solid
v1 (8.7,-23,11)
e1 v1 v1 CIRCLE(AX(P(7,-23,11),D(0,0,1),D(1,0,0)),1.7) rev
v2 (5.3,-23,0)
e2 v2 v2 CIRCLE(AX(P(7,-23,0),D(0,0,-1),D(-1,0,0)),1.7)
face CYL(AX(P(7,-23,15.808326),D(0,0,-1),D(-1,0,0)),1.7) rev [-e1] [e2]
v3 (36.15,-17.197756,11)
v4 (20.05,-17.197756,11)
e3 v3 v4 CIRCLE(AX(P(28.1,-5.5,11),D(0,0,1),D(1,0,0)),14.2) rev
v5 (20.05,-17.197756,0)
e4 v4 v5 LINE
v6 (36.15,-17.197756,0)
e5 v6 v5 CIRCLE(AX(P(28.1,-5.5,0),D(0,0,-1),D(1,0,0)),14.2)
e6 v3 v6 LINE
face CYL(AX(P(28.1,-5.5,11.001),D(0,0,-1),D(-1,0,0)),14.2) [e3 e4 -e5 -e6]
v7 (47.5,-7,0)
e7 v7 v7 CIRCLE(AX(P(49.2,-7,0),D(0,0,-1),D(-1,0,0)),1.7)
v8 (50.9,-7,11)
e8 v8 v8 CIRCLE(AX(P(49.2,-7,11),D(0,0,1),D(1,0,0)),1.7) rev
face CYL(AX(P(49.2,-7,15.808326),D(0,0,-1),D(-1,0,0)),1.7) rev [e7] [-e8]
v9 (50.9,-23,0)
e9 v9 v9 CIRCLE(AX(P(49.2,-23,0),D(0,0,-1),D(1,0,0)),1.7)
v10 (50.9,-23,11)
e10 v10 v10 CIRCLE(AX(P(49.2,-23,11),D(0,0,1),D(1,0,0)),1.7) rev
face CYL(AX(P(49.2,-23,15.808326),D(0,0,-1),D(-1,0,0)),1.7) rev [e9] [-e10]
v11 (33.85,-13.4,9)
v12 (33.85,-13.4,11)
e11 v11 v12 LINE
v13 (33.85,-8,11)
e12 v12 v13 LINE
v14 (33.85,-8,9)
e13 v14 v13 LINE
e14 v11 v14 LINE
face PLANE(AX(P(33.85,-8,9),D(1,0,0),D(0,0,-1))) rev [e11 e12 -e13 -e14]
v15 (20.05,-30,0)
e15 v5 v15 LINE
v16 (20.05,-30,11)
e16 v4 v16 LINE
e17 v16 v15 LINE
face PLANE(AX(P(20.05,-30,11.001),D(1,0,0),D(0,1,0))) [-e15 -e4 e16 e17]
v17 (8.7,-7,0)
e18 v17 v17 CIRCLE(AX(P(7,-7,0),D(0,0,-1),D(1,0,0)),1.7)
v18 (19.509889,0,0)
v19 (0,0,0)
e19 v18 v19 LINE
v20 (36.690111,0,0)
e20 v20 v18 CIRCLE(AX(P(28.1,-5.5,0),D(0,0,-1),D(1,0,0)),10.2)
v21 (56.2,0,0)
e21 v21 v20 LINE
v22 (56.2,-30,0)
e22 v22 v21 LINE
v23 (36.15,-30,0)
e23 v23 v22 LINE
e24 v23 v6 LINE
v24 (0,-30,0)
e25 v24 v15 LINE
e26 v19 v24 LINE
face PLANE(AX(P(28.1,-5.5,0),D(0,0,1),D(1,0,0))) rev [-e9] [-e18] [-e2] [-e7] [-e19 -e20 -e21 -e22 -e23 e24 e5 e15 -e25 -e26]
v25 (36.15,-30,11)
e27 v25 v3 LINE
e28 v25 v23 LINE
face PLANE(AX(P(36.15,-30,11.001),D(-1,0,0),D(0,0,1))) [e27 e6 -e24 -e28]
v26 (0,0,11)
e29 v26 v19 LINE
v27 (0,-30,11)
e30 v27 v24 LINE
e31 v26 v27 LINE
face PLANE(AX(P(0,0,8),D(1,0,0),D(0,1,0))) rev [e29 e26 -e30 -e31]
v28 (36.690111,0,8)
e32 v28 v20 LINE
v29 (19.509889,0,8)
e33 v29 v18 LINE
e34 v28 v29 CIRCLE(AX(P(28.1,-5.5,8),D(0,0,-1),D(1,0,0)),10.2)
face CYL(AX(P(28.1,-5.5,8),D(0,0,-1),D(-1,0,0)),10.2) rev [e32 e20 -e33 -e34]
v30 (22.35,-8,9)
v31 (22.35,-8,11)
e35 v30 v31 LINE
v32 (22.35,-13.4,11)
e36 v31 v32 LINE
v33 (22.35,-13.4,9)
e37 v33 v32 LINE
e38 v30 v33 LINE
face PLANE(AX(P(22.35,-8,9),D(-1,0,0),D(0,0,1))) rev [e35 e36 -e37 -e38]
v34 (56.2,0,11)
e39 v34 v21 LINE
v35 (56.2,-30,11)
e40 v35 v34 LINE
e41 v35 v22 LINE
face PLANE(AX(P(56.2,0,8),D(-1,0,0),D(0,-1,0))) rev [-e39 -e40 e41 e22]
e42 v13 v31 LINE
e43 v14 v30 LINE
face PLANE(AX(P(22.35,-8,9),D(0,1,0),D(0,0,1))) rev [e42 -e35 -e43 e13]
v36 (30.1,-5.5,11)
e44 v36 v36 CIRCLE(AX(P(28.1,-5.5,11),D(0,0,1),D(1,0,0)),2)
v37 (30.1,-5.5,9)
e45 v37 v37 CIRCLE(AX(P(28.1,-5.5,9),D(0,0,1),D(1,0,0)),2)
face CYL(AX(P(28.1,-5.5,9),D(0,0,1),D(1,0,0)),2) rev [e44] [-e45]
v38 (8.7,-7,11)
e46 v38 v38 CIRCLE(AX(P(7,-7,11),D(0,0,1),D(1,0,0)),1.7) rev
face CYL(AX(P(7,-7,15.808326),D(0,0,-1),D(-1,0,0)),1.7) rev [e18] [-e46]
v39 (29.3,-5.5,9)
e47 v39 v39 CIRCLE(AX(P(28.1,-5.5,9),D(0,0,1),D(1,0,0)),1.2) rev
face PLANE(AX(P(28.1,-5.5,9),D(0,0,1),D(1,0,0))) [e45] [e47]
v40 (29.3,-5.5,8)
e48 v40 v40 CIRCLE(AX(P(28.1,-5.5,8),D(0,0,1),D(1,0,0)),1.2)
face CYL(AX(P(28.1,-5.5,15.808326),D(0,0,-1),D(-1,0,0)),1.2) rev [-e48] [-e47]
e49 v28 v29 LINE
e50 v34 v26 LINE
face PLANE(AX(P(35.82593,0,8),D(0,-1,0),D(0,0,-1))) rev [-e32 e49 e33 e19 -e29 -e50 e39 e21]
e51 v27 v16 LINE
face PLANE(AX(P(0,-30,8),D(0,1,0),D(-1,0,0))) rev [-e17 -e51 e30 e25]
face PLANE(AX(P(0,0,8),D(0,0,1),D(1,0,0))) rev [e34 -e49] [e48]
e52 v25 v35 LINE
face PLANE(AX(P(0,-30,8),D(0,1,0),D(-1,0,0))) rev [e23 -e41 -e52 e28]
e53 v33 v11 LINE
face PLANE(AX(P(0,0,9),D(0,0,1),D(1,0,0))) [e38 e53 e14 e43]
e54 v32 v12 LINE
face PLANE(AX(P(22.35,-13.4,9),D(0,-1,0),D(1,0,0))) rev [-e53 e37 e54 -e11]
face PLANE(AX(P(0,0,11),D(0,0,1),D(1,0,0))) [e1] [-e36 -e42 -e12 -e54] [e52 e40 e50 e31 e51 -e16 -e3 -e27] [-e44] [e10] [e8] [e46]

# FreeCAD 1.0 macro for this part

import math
import FreeCAD as App
import Part
import Sketcher

V = App.Vector
Q = App.Units.Quantity


def add_polygon(sketch, points):
    """Adds a closed chain of lines whose ends are joined by coincident constraints."""
    first, n = sketch.GeometryCount, len(points)
    for a, b in zip(points, points[1:] + points[:1]):
        sketch.addGeometry(Part.LineSegment(App.Vector(*a, 0), App.Vector(*b, 0)), False)
    for i in range(n):
        sketch.addConstraint(Sketcher.Constraint("Coincident", first + i, 2, first + (i + 1) % n, 1))

doc = App.newDocument("Part")
body = doc.addObject("PartDesign::Body", "Body")

# Sketch on XY plane
sketch1 = doc.addObject("Sketcher::SketchObject", "Sketch")
body.addObject(sketch1)
sketch1.AttachmentSupport = (doc.XY_Plane, [""])
sketch1.MapMode = "FlatFace"
sketch1.addGeometry([
    Part.LineSegment(V(19.5, 0, 0), V(0, 0, 0)),  # 0
    Part.LineSegment(V(0, 0, 0), V(0, -30, 0)),  # 1
    Part.LineSegment(V(0, -30, 0), V(56.2, -30, 0)),  # 2
    Part.LineSegment(V(56.2, -30, 0), V(56.2, 0, 0)),  # 3
    Part.LineSegment(V(56.2, 0, 0), V(35.8, 0, 0)),  # 4
    Part.ArcOfCircle(Part.Circle(V(35.8, -1.5, 0), V(0, 0, 1), 1.5), math.radians(90), math.radians(270)),  # 5
    Part.LineSegment(V(35.8, -3, 0), V(38, -3, 0)),  # 6
    Part.ArcOfCircle(Part.Circle(V(28.1, -5.5, 0), V(0, 0, 1), 10.2), math.radians(147), math.radians(374)),  # 7
], False)
sketch1.addConstraint([
    Sketcher.Constraint("Coincident", 0, 2, 1, 1),
    Sketcher.Constraint("Coincident", 1, 2, 2, 1),
    Sketcher.Constraint("Coincident", 2, 2, 3, 1),
    Sketcher.Constraint("Coincident", 3, 2, 4, 1),
    Sketcher.Constraint("Tangent", 4, 2, 5, 1),
    Sketcher.Constraint("Tangent", 5, 2, 6, 1),
    Sketcher.Constraint("Coincident", 6, 2, 7, 2),
    Sketcher.Constraint("Coincident", 7, 1, 0, 1),
    Sketcher.Constraint("Horizontal", 0),
    Sketcher.Constraint("Vertical", 1),
    Sketcher.Constraint("Horizontal", 2),
    Sketcher.Constraint("Vertical", 3),
    Sketcher.Constraint("Horizontal", 4),
    Sketcher.Constraint("Horizontal", 6),
    Sketcher.Constraint("Coincident", 0, 2, -1, 1),
    Sketcher.Constraint("PointOnObject", 3, 2, -1),
    Sketcher.Constraint("Radius", 5, Q("1.5 mm")),
    Sketcher.Constraint("Radius", 7, Q("10.2 mm")),
    Sketcher.Constraint("DistanceY", 1, 2, 1, 1, Q("30 mm")),
    Sketcher.Constraint("DistanceX", 2, 1, 2, 2, Q("56.2 mm")),
    Sketcher.Constraint("DistanceY", 7, 3, 5, 3, Q("4 mm")),
    Sketcher.Constraint("DistanceX", -1, 1, 7, 3, Q("28.1 mm")),
    Sketcher.Constraint("DistanceX", 4, 2, 4, 1, Q("20.37407 mm")),
])
pad1 = doc.addObject("PartDesign::Pad", "Pad")
body.addObject(pad1)
pad1.Profile = sketch1
pad1.Length = 8

# Sketch on XY plane
sketch2 = doc.addObject("Sketcher::SketchObject", "Sketch001")
body.addObject(sketch2)
sketch2.AttachmentSupport = (doc.XY_Plane, [""])
sketch2.MapMode = "FlatFace"
sketch2.AttachmentOffset = App.Placement(V(0, 0, 8), App.Rotation())
add_polygon(sketch2, [(0, 0), (0, -30), (56, -30), (56, 0)])  # lines 0-3
sketch2.addConstraint([
    Sketcher.Constraint("Vertical", 0),
    Sketcher.Constraint("Horizontal", 1),
    Sketcher.Constraint("Vertical", 2),
    Sketcher.Constraint("Horizontal", 3),
    Sketcher.Constraint("Coincident", 3, 2, -1, 1),
    Sketcher.Constraint("DistanceY", 0, 2, 0, 1, Q("30 mm")),
    Sketcher.Constraint("DistanceX", 1, 1, 1, 2, Q("56.2 mm")),
])
pad2 = doc.addObject("PartDesign::Pad", "Pad001")
body.addObject(pad2)
pad2.Profile = sketch2
pad2.Length = 3

# Sketch on XY plane
sketch3 = doc.addObject("Sketcher::SketchObject", "Sketch002")
body.addObject(sketch3)
sketch3.AttachmentSupport = (doc.XY_Plane, [""])
sketch3.MapMode = "FlatFace"
sketch3.addGeometry([
    Part.Circle(V(49.2, -7, 0), V(0, 0, 1), 1.7),  # 0
    Part.Circle(V(7, -7, 0), V(0, 0, 1), 1.7),  # 1
    Part.Circle(V(7, -23, 0), V(0, 0, 1), 1.7),  # 2
    Part.Circle(V(49.2, -23, 0), V(0, 0, 1), 1.7),  # 3
    Part.Circle(V(28.1, -5.5, 0), V(0, 0, 1), 1.2),  # 4
], False)
sketch3.addConstraint([
    Sketcher.Constraint("Equal", 0, 1),
    Sketcher.Constraint("Equal", 1, 2),
    Sketcher.Constraint("Equal", 2, 3),
    Sketcher.Constraint("Horizontal", 0, 3, 1, 3),
    Sketcher.Constraint("Horizontal", 2, 3, 3, 3),
    Sketcher.Constraint("Vertical", 1, 3, 2, 3),
    Sketcher.Constraint("Vertical", 0, 3, 3, 3),
    Sketcher.Constraint("Diameter", 0, Q("3.4 mm")),
    Sketcher.Constraint("Diameter", 4, Q("2.4 mm")),
    Sketcher.Constraint("DistanceY", 0, 3, -1, 1, Q("7 mm")),
    Sketcher.Constraint("DistanceX", -1, 1, 1, 3, Q("7 mm")),
    Sketcher.Constraint("DistanceY", 2, 3, -1, 1, Q("23 mm")),
    Sketcher.Constraint("DistanceX", -1, 1, 0, 3, Q("49.2 mm")),
    Sketcher.Constraint("DistanceX", -1, 1, 4, 3, Q("28.1 mm")),
    Sketcher.Constraint("DistanceY", 4, 3, -1, 1, Q("5.5 mm")),
])
pocket1 = doc.addObject("PartDesign::Pocket", "Pocket")
body.addObject(pocket1)
pocket1.Profile = sketch3
pocket1.Length = 11
pocket1.Reversed = True

# Sketch on XY plane
sketch4 = doc.addObject("Sketcher::SketchObject", "Sketch003")
body.addObject(sketch4)
sketch4.AttachmentSupport = (doc.XY_Plane, [""])
sketch4.MapMode = "FlatFace"
sketch4.addGeometry([
    Part.LineSegment(V(20, 0, 0), V(37, 0, 0)),
    Part.ArcOfCircle(Part.Circle(V(28, -6, 0), V(0, 0, 1), 10), math.radians(147), math.radians(393)),
], False)
sketch4.addConstraint([
    Sketcher.Constraint("Coincident", 0, 1, 1, 1),
    Sketcher.Constraint("Coincident", 1, 2, 0, 2),
    Sketcher.Constraint("Horizontal", 0),
    Sketcher.Constraint("PointOnObject", 0, 1, -1),
    Sketcher.Constraint("Radius", 1, Q("10.2 mm")),
    Sketcher.Constraint("DistanceX", -1, 1, 1, 3, Q("28.1 mm")),
    Sketcher.Constraint("DistanceY", 1, 3, -1, 1, Q("5.5 mm")),
])
pocket2 = doc.addObject("PartDesign::Pocket", "Pocket001")
body.addObject(pocket2)
pocket2.Profile = sketch4
pocket2.Length = 8
pocket2.Reversed = True

# Sketch on XY plane
sketch5 = doc.addObject("Sketcher::SketchObject", "Sketch004")
body.addObject(sketch5)
sketch5.AttachmentSupport = (doc.XY_Plane, [""])
sketch5.MapMode = "FlatFace"
sketch5.AttachmentOffset = App.Placement(V(0, 0, 11), App.Rotation())
sketch5.addGeometry(Part.Circle(V(28.1, -5.5, 0), V(0, 0, 1), 2), False)  # 0
add_polygon(sketch5, [(22.4, -8), (22.4, -13.4), (33.9, -13.4), (33.9, -8)])  # lines 1-4
sketch5.addConstraint([
    Sketcher.Constraint("Vertical", 1),
    Sketcher.Constraint("Horizontal", 2),
    Sketcher.Constraint("Vertical", 3),
    Sketcher.Constraint("Horizontal", 4),
    Sketcher.Constraint("Diameter", 0, Q("4 mm")),
    Sketcher.Constraint("DistanceX", 2, 1, 2, 2, Q("11.5 mm")),
    Sketcher.Constraint("DistanceY", 1, 2, 1, 1, Q("5.4 mm")),
    Sketcher.Constraint("DistanceY", 3, 2, -1, 1, Q("8 mm")),
    Sketcher.Constraint("DistanceX", -1, 1, 0, 3, Q("28.1 mm")),
    Sketcher.Constraint("DistanceY", 0, 3, -1, 1, Q("5.5 mm")),
    Sketcher.Constraint("DistanceX", -1, 1, 1, 2, Q("22.35 mm")),
])
pocket3 = doc.addObject("PartDesign::Pocket", "Pocket002")
body.addObject(pocket3)
pocket3.Profile = sketch5
pocket3.Length = 2

# Sketch on XY plane
sketch6 = doc.addObject("Sketcher::SketchObject", "Sketch005")
body.addObject(sketch6)
sketch6.AttachmentSupport = (doc.XY_Plane, [""])
sketch6.MapMode = "FlatFace"
sketch6.addGeometry([
    Part.LineSegment(V(36, -30, 0), V(36, -17, 0)),
    Part.ArcOfCircle(Part.Circle(V(28, -6, 0), V(0, 0, 1), 14), math.radians(-125), math.radians(-55)),
    Part.LineSegment(V(20, -17, 0), V(20, -30, 0)),
    Part.LineSegment(V(20, -30, 0), V(36, -30, 0)),
], False)
sketch6.addConstraint([
    Sketcher.Constraint("Coincident", 0, 2, 1, 2),
    Sketcher.Constraint("Coincident", 1, 1, 2, 1),
    Sketcher.Constraint("Coincident", 2, 2, 3, 1),
    Sketcher.Constraint("Coincident", 3, 2, 0, 1),
    Sketcher.Constraint("Vertical", 0),
    Sketcher.Constraint("Vertical", 2),
    Sketcher.Constraint("Horizontal", 3),
    Sketcher.Constraint("Horizontal", 0, 2, 1, 1),
    Sketcher.Constraint("Radius", 1, Q("14.2 mm")),
    Sketcher.Constraint("DistanceX", 3, 1, 3, 2, Q("16.1 mm")),
    Sketcher.Constraint("DistanceY", 2, 2, -1, 1, Q("30 mm")),
    Sketcher.Constraint("DistanceX", -1, 1, 1, 3, Q("28.1 mm")),
    Sketcher.Constraint("DistanceY", 1, 3, -1, 1, Q("5.5 mm")),
])
pocket4 = doc.addObject("PartDesign::Pocket", "Pocket003")
body.addObject(pocket4)
pocket4.Profile = sketch6
pocket4.Type = "UpToFirst"
pocket4.Reversed = True

doc.recompute()
